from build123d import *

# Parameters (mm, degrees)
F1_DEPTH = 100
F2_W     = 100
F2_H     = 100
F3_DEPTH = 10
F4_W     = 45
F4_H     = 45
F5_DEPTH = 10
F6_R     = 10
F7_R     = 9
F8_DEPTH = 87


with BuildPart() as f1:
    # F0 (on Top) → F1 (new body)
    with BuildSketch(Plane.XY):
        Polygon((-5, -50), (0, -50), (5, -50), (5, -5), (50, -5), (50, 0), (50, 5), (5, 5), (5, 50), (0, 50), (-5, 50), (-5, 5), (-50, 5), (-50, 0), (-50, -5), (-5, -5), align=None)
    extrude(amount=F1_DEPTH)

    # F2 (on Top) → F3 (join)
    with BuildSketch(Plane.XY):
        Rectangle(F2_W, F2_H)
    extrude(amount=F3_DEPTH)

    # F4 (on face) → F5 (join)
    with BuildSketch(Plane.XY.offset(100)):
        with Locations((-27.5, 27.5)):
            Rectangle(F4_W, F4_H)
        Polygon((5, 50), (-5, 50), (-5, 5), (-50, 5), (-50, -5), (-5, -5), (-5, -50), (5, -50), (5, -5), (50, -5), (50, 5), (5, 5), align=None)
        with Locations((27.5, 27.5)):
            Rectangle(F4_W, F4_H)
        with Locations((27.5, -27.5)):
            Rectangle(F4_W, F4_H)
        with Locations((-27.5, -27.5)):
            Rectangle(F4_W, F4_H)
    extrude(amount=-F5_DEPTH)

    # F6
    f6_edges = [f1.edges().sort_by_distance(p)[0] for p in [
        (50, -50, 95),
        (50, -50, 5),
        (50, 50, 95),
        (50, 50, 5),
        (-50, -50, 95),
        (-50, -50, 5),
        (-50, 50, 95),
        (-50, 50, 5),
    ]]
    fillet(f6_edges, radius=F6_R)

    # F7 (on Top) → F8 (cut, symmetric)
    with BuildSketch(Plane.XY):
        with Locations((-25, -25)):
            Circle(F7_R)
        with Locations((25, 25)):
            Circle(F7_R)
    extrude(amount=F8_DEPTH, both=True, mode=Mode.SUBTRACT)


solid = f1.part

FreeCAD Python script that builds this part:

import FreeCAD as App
import Part
import Sketcher

V = App.Vector


def edges_at(feature, points):
    """Names of the edges that pass closest to the given points."""
    edges = feature.Shape.Edges
    near = lambda p: min(range(len(edges)), key=lambda i: edges[i].distToShape(Part.Vertex(*p))[0])
    return sorted({f"Edge{near(p) + 1}" for p in points})


def add_polygon(sketch, points):
    """Adds a closed chain of lines whose ends are joined by coincident constraints."""
    first, n = sketch.GeometryCount, len(points)
    for a, b in zip(points, points[1:] + points[:1]):
        sketch.addGeometry(Part.LineSegment(App.Vector(*a, 0), App.Vector(*b, 0)), False)
    for i in range(n):
        sketch.addConstraint(Sketcher.Constraint("Coincident", first + i, 2, first + (i + 1) % n, 1))

doc = App.newDocument("Part")
body = doc.addObject("PartDesign::Body", "Body")

# Sketch on XY plane
sketch1 = doc.addObject("Sketcher::SketchObject", "Sketch")
body.addObject(sketch1)
sketch1.AttachmentSupport = (doc.XY_Plane, [""])
sketch1.MapMode = "FlatFace"
add_polygon(sketch1, [(-5, -50), (5, -50), (5, -5), (50, -5), (50, 5), (5, 5), (5, 50), (-5, 50), (-5, 5), (-50, 5), (-50, -5), (-5, -5)])  # lines 0-11
sketch1.addConstraint(Sketcher.Constraint("Horizontal", 0))
sketch1.addConstraint(Sketcher.Constraint("Vertical", 1))
sketch1.addConstraint(Sketcher.Constraint("Horizontal", 2))
sketch1.addConstraint(Sketcher.Constraint("Vertical", 3))
sketch1.addConstraint(Sketcher.Constraint("Horizontal", 4))
sketch1.addConstraint(Sketcher.Constraint("Vertical", 5))
sketch1.addConstraint(Sketcher.Constraint("Horizontal", 6))
sketch1.addConstraint(Sketcher.Constraint("Vertical", 7))
sketch1.addConstraint(Sketcher.Constraint("Horizontal", 8))
sketch1.addConstraint(Sketcher.Constraint("Vertical", 9))
sketch1.addConstraint(Sketcher.Constraint("Horizontal", 10))
sketch1.addConstraint(Sketcher.Constraint("Vertical", 11))
sketch1.addConstraint(Sketcher.Constraint("Symmetric", 0, 2, 6, 2, -1, 1))
sketch1.addConstraint(Sketcher.Constraint("Symmetric", 2, 2, 8, 2, -1, 1))
sketch1.addConstraint(Sketcher.Constraint("Symmetric", 4, 2, 10, 2, -1, 1))
sketch1.addConstraint(Sketcher.Constraint("Symmetric", 4, 2, 7, 2, -2))
sketch1.addConstraint(Sketcher.Constraint("Equal", 10, 1))
sketch1.addConstraint(Sketcher.Constraint("Equal", 6, 3))
sketch1.addConstraint(Sketcher.Constraint("DistanceX", 0, 1, 0, 2, 10.0))
sketch1.addConstraint(Sketcher.Constraint("DistanceX", 2, 1, 2, 2, 45.0))
pad1 = doc.addObject("PartDesign::Pad", "Pad")
body.addObject(pad1)
pad1.Profile = sketch1
pad1.Length = 100

# Sketch on XY plane
sketch2 = doc.addObject("Sketcher::SketchObject", "Sketch001")
body.addObject(sketch2)
sketch2.AttachmentSupport = (doc.XY_Plane, [""])
sketch2.MapMode = "FlatFace"
add_polygon(sketch2, [(-50, 50), (-50, -50), (50, -50), (50, 50)])  # lines 0-3
sketch2.addConstraint(Sketcher.Constraint("Vertical", 0))
sketch2.addConstraint(Sketcher.Constraint("Horizontal", 1))
sketch2.addConstraint(Sketcher.Constraint("Vertical", 2))
sketch2.addConstraint(Sketcher.Constraint("Horizontal", 3))
sketch2.addConstraint(Sketcher.Constraint("Symmetric", 0, 2, 2, 2, -1, 1))
sketch2.addConstraint(Sketcher.Constraint("Equal", 3, 0))
sketch2.addConstraint(Sketcher.Constraint("DistanceX", 1, 1, 1, 2, 100.0))
pad2 = doc.addObject("PartDesign::Pad", "Pad001")
body.addObject(pad2)
pad2.Profile = sketch2
pad2.Length = 10

# Sketch on XY plane
sketch3 = doc.addObject("Sketcher::SketchObject", "Sketch002")
body.addObject(sketch3)
sketch3.AttachmentSupport = (doc.XY_Plane, [""])
sketch3.MapMode = "FlatFace"
sketch3.AttachmentOffset = App.Placement(V(0, 0, 100), App.Rotation())
add_polygon(sketch3, [(-50, 50), (-50, -50), (50, -50), (50, 50)])  # lines 0-3
sketch3.addConstraint(Sketcher.Constraint("Vertical", 0))
sketch3.addConstraint(Sketcher.Constraint("Horizontal", 1))
sketch3.addConstraint(Sketcher.Constraint("Vertical", 2))
sketch3.addConstraint(Sketcher.Constraint("Horizontal", 3))
sketch3.addConstraint(Sketcher.Constraint("Symmetric", 0, 2, 2, 2, -1, 1))
sketch3.addConstraint(Sketcher.Constraint("Equal", 3, 0))
sketch3.addConstraint(Sketcher.Constraint("DistanceX", 1, 1, 1, 2, 100.0))
pad3 = doc.addObject("PartDesign::Pad", "Pad002")
body.addObject(pad3)
pad3.Profile = sketch3
pad3.Length = 10
pad3.Reversed = True
doc.recompute()

fillet = doc.addObject("PartDesign::Fillet", "Fillet")
body.addObject(fillet)
fillet.Base = (pad3, edges_at(pad3, [
    (50, -50, 95),
    (50, -50, 5),
    (50, 50, 95),
    (50, 50, 5),
    (-50, -50, 95),
    (-50, -50, 5),
    (-50, 50, 95),
    (-50, 50, 5),
]))
fillet.Radius = 10

# Sketch on XY plane
sketch4 = doc.addObject("Sketcher::SketchObject", "Sketch003")
body.addObject(sketch4)
sketch4.AttachmentSupport = (doc.XY_Plane, [""])
sketch4.MapMode = "FlatFace"
sketch4.addGeometry(Part.Circle(V(-25, -25, 0), V(0, 0, 1), 9), False)
sketch4.addGeometry(Part.Circle(V(25, 25, 0), V(0, 0, 1), 9), False)
sketch4.addConstraint(Sketcher.Constraint("Equal", 0, 1))
sketch4.addConstraint(Sketcher.Constraint("Symmetric", 0, 3, 1, 3, -1, 1))
sketch4.addConstraint(Sketcher.Constraint("Diameter", 0, 18.0))
sketch4.addConstraint(Sketcher.Constraint("DistanceX", 0, 3, -1, 1, 25.0))
sketch4.addConstraint(Sketcher.Constraint("DistanceY", 0, 3, -1, 1, 25.0))
pocket1 = doc.addObject("PartDesign::Pocket", "Pocket")
body.addObject(pocket1)
pocket1.Profile = sketch4
pocket1.Length = 174
pocket1.Midplane = True

doc.recompute()
